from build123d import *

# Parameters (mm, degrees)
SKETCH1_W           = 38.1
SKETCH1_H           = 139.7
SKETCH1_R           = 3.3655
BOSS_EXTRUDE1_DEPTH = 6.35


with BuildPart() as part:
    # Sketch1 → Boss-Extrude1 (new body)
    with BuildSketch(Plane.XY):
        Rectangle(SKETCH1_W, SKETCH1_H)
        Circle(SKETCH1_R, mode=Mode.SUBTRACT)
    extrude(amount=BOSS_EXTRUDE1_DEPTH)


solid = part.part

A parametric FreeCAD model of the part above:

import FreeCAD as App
import Part
import Sketcher

V = App.Vector
Q = App.Units.Quantity

doc = App.newDocument("Part")
body = doc.addObject("PartDesign::Body", "Body")

sketch1 = body.newObject("Sketcher::SketchObject", "Sketch")
sketch1.AttachmentSupport = (doc.getObject("XY_Plane"), [""])
sketch1.MapMode = "FlatFace"
sketch1.addGeometry(Part.LineSegment(V(-19.05, 69.85, 0), V(-19.05, -69.85, 0)), False)
sketch1.addGeometry(Part.LineSegment(V(-19.05, -69.85, 0), V(19.05, -69.85, 0)), False)
sketch1.addGeometry(Part.LineSegment(V(19.05, -69.85, 0), V(19.05, 69.85, 0)), False)
sketch1.addGeometry(Part.LineSegment(V(19.05, 69.85, 0), V(-19.05, 69.85, 0)), False)
sketch1.addGeometry(Part.Circle(V(0, 0, 0), V(0, 0, 1), 3.3655), False)
sketch1.addConstraint(Sketcher.Constraint("Coincident", 0, 2, 1, 1))
sketch1.addConstraint(Sketcher.Constraint("Coincident", 1, 2, 2, 1))
sketch1.addConstraint(Sketcher.Constraint("Coincident", 2, 2, 3, 1))
sketch1.addConstraint(Sketcher.Constraint("Coincident", 3, 2, 0, 1))
sketch1.addConstraint(Sketcher.Constraint("Vertical", 0))
sketch1.addConstraint(Sketcher.Constraint("Horizontal", 1))
sketch1.addConstraint(Sketcher.Constraint("Vertical", 2))
sketch1.addConstraint(Sketcher.Constraint("Horizontal", 3))
sketch1.addConstraint(Sketcher.Constraint("Coincident", 4, 3, -1, 1))
sketch1.addConstraint(Sketcher.Constraint("Symmetric", 0, 2, 2, 2, -1, 1))
sketch1.addConstraint(Sketcher.Constraint("Diameter", 4, Q("0.265 in")))
sketch1.addConstraint(Sketcher.Constraint("DistanceX", 1, 1, 1, 2, Q("1.5 in")))
sketch1.addConstraint(Sketcher.Constraint("DistanceY", 0, 2, 0, 1, Q("5.5 in")))
pad1 = body.newObject("PartDesign::Pad", "Pad")
pad1.Profile = sketch1
pad1.Length = Q("0.25 in")

doc.recompute()
